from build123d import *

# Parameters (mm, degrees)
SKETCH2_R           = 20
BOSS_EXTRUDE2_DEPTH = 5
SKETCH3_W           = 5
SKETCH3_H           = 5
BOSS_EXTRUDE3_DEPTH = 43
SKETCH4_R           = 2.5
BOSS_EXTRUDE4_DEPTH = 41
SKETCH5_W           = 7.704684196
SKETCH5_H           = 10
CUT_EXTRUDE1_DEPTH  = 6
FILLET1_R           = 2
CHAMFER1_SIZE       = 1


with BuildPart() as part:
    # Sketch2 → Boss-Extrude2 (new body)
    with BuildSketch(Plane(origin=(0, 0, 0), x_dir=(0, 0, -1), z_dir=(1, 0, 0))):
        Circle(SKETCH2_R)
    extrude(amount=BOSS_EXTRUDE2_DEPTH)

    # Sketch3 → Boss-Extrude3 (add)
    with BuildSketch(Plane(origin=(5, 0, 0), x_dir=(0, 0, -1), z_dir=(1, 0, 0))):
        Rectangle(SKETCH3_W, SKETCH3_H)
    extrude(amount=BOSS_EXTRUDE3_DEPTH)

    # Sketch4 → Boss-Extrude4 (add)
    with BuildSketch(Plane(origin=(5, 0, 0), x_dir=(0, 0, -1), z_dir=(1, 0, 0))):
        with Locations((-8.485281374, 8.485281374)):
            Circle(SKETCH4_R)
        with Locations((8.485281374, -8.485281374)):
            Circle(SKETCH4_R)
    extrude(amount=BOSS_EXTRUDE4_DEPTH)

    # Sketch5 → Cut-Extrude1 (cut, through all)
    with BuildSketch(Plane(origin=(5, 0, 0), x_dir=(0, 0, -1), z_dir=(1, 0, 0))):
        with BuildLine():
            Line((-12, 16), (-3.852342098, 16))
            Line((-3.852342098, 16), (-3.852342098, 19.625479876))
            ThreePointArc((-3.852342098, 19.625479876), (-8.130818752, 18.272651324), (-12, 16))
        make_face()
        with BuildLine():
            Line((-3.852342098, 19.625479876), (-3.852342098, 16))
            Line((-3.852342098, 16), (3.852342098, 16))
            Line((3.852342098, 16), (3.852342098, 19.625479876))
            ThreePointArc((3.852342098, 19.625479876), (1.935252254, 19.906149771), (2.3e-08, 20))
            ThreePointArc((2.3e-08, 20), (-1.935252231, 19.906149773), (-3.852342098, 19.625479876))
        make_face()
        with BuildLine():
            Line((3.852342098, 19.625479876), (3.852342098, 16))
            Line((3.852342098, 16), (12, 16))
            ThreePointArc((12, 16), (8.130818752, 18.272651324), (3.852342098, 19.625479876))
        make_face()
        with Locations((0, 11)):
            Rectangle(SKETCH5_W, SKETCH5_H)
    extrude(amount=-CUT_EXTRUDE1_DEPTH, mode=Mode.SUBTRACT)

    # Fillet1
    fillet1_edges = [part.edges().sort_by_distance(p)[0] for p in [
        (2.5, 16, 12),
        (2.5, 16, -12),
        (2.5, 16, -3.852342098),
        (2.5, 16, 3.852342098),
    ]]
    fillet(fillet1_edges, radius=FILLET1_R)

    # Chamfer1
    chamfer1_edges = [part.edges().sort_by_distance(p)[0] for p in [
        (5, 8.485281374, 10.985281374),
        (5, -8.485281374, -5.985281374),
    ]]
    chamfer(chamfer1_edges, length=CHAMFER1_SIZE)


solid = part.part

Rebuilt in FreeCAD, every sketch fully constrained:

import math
import FreeCAD as App
import Part
import Sketcher

V = App.Vector


def edges_at(feature, points):
    """Names of the edges that pass closest to the given points."""
    edges = feature.Shape.Edges
    near = lambda p: min(range(len(edges)), key=lambda i: edges[i].distToShape(Part.Vertex(*p))[0])
    return sorted({f"Edge{near(p) + 1}" for p in points})


def add_polygon(sketch, points):
    """Adds a closed chain of lines whose ends are joined by coincident constraints."""
    first, n = sketch.GeometryCount, len(points)
    for a, b in zip(points, points[1:] + points[:1]):
        sketch.addGeometry(Part.LineSegment(App.Vector(*a, 0), App.Vector(*b, 0)), False)
    for i in range(n):
        sketch.addConstraint(Sketcher.Constraint("Coincident", first + i, 2, first + (i + 1) % n, 1))

doc = App.newDocument("Part")
body = doc.addObject("PartDesign::Body", "Body")

# Sketch on YZ plane
sketch1 = body.newObject("Sketcher::SketchObject", "Sketch")
sketch1.AttachmentSupport = (doc.getObject("YZ_Plane"), [""])
sketch1.MapMode = "FlatFace"
sketch1.addGeometry(Part.Circle(V(0, 0, 0), V(0, 0, 1), 20), False)
sketch1.addConstraint(Sketcher.Constraint("Coincident", 0, 3, -1, 1))
sketch1.addConstraint(Sketcher.Constraint("Diameter", 0, 40.0))
pad1 = body.newObject("PartDesign::Pad", "Pad")
pad1.Profile = sketch1
pad1.Length = 5

# Sketch on YZ plane
sketch2 = body.newObject("Sketcher::SketchObject", "Sketch001")
sketch2.AttachmentSupport = (doc.getObject("YZ_Plane"), [""])
sketch2.MapMode = "FlatFace"
sketch2.AttachmentOffset = App.Placement(V(0, 0, 5), App.Rotation())
add_polygon(sketch2, [(2, 2), (-2, 2), (-2, -2), (2, -2)])  # lines 0-3
sketch2.addConstraint(Sketcher.Constraint("Horizontal", 0))
sketch2.addConstraint(Sketcher.Constraint("Vertical", 1))
sketch2.addConstraint(Sketcher.Constraint("Horizontal", 2))
sketch2.addConstraint(Sketcher.Constraint("Vertical", 3))
sketch2.addConstraint(Sketcher.Constraint("Symmetric", 0, 2, 2, 2, -1, 1))
sketch2.addConstraint(Sketcher.Constraint("Equal", 2, 1))
sketch2.addConstraint(Sketcher.Constraint("DistanceX", 0, 2, 0, 1, 5.0))
pad2 = body.newObject("PartDesign::Pad", "Pad001")
pad2.Profile = sketch2
pad2.Length = 43

# Sketch on YZ plane
sketch3 = body.newObject("Sketcher::SketchObject", "Sketch002")
sketch3.AttachmentSupport = (doc.getObject("YZ_Plane"), [""])
sketch3.MapMode = "FlatFace"
sketch3.AttachmentOffset = App.Placement(V(0, 0, 5), App.Rotation())
sketch3.addGeometry(Part.Circle(V(8.5, 8.5, 0), V(0, 0, 1), 2.5), False)
sketch3.addGeometry(Part.Circle(V(-8.5, -8.5, 0), V(0, 0, 1), 2.5), False)
sketch3.addConstraint(Sketcher.Constraint("Equal", 0, 1))
sketch3.addConstraint(Sketcher.Constraint("Symmetric", 0, 3, 1, 3, -1, 1))
sketch3.addConstraint(Sketcher.Constraint("Diameter", 0, 5.0))
sketch3.addConstraint(Sketcher.Constraint("DistanceX", -1, 1, 0, 3, 8.485281))
sketch3.addConstraint(Sketcher.Constraint("DistanceY", -1, 1, 0, 3, 8.485281))
pad3 = body.newObject("PartDesign::Pad", "Pad002")
pad3.Profile = sketch3
pad3.Length = 41

# Sketch on YZ plane
sketch4 = body.newObject("Sketcher::SketchObject", "Sketch003")
sketch4.AttachmentSupport = (doc.getObject("YZ_Plane"), [""])
sketch4.MapMode = "FlatFace"
sketch4.AttachmentOffset = App.Placement(V(0, 0, 5), App.Rotation())
sketch4.addGeometry(Part.LineSegment(V(16, 12, 0), V(16, 3.9, 0)), False)
sketch4.addGeometry(Part.LineSegment(V(16, 3.9, 0), V(6, 3.9, 0)), False)
sketch4.addGeometry(Part.LineSegment(V(6, 3.9, 0), V(6, -3.9, 0)), False)
sketch4.addGeometry(Part.LineSegment(V(6, -3.9, 0), V(16, -3.9, 0)), False)
sketch4.addGeometry(Part.LineSegment(V(16, -3.9, 0), V(16, -12, 0)), False)
sketch4.addGeometry(Part.ArcOfCircle(Part.Circle(V(0, 0, 0), V(0, 0, 1), 20), math.radians(-37), math.radians(-11)), False)
sketch4.addGeometry(Part.ArcOfCircle(Part.Circle(V(0, 0, 0), V(0, 0, 1), 20), math.radians(-11.11), math.radians(0)), False)
sketch4.addGeometry(Part.ArcOfCircle(Part.Circle(V(0, 0, 0), V(0, 0, 1), 20), math.radians(0), math.radians(11.11)), False)
sketch4.addGeometry(Part.ArcOfCircle(Part.Circle(V(0, 0, 0), V(0, 0, 1), 20), math.radians(11), math.radians(37)), False)
sketch4.addConstraint(Sketcher.Constraint("Coincident", 0, 2, 1, 1))
sketch4.addConstraint(Sketcher.Constraint("Coincident", 1, 2, 2, 1))
sketch4.addConstraint(Sketcher.Constraint("Coincident", 2, 2, 3, 1))
sketch4.addConstraint(Sketcher.Constraint("Coincident", 3, 2, 4, 1))
sketch4.addConstraint(Sketcher.Constraint("Coincident", 4, 2, 5, 1))
sketch4.addConstraint(Sketcher.Constraint("Tangent", 5, 2, 6, 1))
sketch4.addConstraint(Sketcher.Constraint("Tangent", 6, 2, 7, 1))
sketch4.addConstraint(Sketcher.Constraint("Tangent", 7, 2, 8, 1))
sketch4.addConstraint(Sketcher.Constraint("Coincident", 8, 2, 0, 1))
sketch4.addConstraint(Sketcher.Constraint("Vertical", 0))
sketch4.addConstraint(Sketcher.Constraint("Horizontal", 1))
sketch4.addConstraint(Sketcher.Constraint("Vertical", 2))
sketch4.addConstraint(Sketcher.Constraint("Horizontal", 3))
sketch4.addConstraint(Sketcher.Constraint("Vertical", 4))
sketch4.addConstraint(Sketcher.Constraint("Coincident", 5, 3, -1, 1))
sketch4.addConstraint(Sketcher.Constraint("Coincident", 7, 3, -1, 1))
sketch4.addConstraint(Sketcher.Constraint("Equal", 7, 8))
sketch4.addConstraint(Sketcher.Constraint("Symmetric", 0, 2, 3, 2, -1))
sketch4.addConstraint(Sketcher.Constraint("PointOnObject", 6, 2, -1))
sketch4.addConstraint(Sketcher.Constraint("Horizontal", 3, 2, 5, 2))
sketch4.addConstraint(Sketcher.Constraint("Horizontal", 1, 2, 7, 2))
sketch4.addConstraint(Sketcher.Constraint("Radius", 5, 20.0))
sketch4.addConstraint(Sketcher.Constraint("DistanceX", 1, 2, 1, 1, 10.0))
sketch4.addConstraint(Sketcher.Constraint("DistanceX", -1, 1, 0, 2, 16.0))
sketch4.addConstraint(Sketcher.Constraint("DistanceY", 0, 2, 0, 1, 8.147658))
pocket1 = body.newObject("PartDesign::Pocket", "Pocket")
pocket1.Profile = sketch4
pocket1.Type = "ThroughAll"
doc.recompute()

fillet = body.newObject("PartDesign::Fillet", "Fillet")
fillet.Base = (pocket1, edges_at(pocket1, [
    (2.5, 16, 12),
    (2.5, 16, -12),
    (2.5, 16, -3.852),
    (2.5, 16, 3.852),
]))
fillet.Radius = 2
doc.recompute()

chamfer = body.newObject("PartDesign::Chamfer", "Chamfer")
chamfer.Base = (fillet, edges_at(fillet, [(5, 8.485, 10.985), (5, -8.485, -5.985)]))
chamfer.Size = 1

doc.recompute()
